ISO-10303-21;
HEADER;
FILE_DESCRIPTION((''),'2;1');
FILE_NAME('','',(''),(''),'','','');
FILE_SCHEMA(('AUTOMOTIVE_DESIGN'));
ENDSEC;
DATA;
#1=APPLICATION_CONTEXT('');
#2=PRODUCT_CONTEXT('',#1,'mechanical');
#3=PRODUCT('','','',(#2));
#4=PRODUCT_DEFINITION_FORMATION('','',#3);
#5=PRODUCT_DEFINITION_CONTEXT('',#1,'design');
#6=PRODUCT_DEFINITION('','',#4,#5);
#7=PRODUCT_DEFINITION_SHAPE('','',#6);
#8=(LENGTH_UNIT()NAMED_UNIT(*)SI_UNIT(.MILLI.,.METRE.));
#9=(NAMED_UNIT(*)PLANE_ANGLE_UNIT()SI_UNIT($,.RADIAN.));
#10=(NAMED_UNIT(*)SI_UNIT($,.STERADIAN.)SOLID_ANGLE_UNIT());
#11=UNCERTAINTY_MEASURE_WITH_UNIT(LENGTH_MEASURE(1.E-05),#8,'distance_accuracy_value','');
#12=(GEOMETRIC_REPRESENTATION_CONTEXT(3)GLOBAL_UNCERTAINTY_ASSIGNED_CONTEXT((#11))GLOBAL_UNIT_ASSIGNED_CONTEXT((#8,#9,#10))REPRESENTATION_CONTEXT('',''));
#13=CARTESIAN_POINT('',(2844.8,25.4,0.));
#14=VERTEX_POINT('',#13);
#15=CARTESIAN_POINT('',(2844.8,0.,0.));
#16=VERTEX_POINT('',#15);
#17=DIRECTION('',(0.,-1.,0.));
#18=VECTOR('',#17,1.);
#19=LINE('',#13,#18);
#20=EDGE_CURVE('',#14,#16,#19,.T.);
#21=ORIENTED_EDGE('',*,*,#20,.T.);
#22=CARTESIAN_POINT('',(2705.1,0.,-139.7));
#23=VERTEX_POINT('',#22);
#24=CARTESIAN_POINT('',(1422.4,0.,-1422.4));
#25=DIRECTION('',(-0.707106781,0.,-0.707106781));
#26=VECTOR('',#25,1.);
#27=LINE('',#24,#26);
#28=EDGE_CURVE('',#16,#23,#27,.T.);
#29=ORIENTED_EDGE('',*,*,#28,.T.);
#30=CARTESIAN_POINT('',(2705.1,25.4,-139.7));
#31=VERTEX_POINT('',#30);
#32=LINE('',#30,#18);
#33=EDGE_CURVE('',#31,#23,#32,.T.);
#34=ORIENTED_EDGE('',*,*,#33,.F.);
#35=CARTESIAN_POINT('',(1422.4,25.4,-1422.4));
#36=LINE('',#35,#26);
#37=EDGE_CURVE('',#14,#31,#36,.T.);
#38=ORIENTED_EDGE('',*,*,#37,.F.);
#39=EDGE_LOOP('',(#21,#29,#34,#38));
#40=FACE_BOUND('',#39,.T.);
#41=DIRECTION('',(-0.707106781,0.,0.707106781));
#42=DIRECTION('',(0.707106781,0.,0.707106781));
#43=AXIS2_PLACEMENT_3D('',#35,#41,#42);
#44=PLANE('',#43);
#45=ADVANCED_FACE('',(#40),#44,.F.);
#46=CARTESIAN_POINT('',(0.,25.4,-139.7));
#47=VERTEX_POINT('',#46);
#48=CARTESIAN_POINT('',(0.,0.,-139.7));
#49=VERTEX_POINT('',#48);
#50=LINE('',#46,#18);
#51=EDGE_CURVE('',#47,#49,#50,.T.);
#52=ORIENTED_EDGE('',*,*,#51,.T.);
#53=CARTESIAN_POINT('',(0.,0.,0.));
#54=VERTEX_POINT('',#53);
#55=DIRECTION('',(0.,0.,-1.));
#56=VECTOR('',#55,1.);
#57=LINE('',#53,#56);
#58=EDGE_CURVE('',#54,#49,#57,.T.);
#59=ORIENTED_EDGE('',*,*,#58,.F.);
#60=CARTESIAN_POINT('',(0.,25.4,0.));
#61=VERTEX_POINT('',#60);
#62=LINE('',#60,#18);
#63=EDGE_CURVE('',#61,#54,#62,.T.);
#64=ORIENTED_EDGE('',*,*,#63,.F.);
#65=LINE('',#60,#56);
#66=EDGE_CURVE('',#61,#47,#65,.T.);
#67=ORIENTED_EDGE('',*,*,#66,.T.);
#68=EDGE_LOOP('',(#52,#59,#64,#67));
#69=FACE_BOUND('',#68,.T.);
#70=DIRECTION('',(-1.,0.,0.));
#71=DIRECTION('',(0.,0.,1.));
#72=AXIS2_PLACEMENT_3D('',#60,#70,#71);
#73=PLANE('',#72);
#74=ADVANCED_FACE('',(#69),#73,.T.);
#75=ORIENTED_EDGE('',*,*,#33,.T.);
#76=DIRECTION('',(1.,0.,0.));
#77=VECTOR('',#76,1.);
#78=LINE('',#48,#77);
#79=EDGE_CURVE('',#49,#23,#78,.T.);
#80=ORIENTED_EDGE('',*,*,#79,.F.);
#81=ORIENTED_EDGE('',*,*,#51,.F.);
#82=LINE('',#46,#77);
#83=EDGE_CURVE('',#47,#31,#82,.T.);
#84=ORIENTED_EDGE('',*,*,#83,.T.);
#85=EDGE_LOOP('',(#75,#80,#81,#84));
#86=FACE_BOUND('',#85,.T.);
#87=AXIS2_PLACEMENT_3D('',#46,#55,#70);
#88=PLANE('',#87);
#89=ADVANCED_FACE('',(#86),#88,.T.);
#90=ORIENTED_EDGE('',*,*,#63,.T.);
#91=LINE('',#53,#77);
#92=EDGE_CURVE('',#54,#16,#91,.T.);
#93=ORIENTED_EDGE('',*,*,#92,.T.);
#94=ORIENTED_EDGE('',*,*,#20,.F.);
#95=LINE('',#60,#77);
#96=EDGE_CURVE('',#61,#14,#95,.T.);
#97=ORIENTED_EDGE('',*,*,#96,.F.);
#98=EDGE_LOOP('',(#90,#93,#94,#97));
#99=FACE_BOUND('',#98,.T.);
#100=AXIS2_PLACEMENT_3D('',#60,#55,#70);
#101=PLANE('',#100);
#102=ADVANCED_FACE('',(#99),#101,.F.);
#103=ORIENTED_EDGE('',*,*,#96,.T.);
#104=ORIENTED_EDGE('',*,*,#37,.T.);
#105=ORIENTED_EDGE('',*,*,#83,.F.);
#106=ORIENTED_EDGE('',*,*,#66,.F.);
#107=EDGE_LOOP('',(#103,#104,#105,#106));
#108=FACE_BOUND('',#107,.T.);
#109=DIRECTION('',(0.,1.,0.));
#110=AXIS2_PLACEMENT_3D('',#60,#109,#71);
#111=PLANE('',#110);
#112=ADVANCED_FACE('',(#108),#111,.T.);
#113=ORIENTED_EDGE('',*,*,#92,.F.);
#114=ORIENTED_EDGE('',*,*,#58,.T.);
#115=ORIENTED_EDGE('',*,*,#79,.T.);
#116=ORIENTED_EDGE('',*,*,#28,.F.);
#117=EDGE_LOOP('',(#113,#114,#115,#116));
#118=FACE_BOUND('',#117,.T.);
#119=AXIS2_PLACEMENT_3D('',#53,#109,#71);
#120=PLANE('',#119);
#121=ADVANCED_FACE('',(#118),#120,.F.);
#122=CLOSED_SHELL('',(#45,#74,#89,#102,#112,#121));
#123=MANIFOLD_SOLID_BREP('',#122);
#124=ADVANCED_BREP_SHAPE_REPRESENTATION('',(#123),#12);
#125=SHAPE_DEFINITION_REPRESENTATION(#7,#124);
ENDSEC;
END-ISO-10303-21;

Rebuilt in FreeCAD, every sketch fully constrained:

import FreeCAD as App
import Part
import Sketcher
from FreeCAD import Vector
Q = App.Units.Quantity


def add_polygon(sketch, points):
    """Adds a closed chain of lines whose ends are joined by coincident constraints."""
    first, n = sketch.GeometryCount, len(points)
    for a, b in zip(points, points[1:] + points[:1]):
        sketch.addGeometry(Part.LineSegment(App.Vector(*a, 0), App.Vector(*b, 0)), False)
    for i in range(n):
        sketch.addConstraint(Sketcher.Constraint("Coincident", first + i, 2, first + (i + 1) % n, 1))

doc = App.newDocument("Part")
body = doc.addObject("PartDesign::Body", "Body")

sketch1 = body.newObject("Sketcher::SketchObject", "Sketch")
sketch1.AttachmentSupport = (doc.getObject("XZ_Plane"), [""])
sketch1.MapMode = "FlatFace"
add_polygon(sketch1, [(0, -140), (0, 0), (2845, 0), (2705, -140)])
sketch1.addConstraint(Sketcher.Constraint("Vertical", 0))
sketch1.addConstraint(Sketcher.Constraint("Horizontal", 1))
sketch1.addConstraint(Sketcher.Constraint("Horizontal", 3))
sketch1.addConstraint(Sketcher.Constraint("Coincident", 0, 2, -1, 1))
sketch1.addConstraint(Sketcher.Constraint("DistanceX", 1, 1, 1, 2, Q("112 in")))
sketch1.addConstraint(Sketcher.Constraint("DistanceX", 3, 2, 3, 1, Q("106.5 in")))
sketch1.addConstraint(Sketcher.Constraint("DistanceY", 0, 1, 0, 2, Q("5.5 in")))
pad1 = body.newObject("PartDesign::Pad", "Pad")
pad1.Profile = sketch1
pad1.Length = Q("1 in")
pad1.Reversed = True

doc.recompute()
